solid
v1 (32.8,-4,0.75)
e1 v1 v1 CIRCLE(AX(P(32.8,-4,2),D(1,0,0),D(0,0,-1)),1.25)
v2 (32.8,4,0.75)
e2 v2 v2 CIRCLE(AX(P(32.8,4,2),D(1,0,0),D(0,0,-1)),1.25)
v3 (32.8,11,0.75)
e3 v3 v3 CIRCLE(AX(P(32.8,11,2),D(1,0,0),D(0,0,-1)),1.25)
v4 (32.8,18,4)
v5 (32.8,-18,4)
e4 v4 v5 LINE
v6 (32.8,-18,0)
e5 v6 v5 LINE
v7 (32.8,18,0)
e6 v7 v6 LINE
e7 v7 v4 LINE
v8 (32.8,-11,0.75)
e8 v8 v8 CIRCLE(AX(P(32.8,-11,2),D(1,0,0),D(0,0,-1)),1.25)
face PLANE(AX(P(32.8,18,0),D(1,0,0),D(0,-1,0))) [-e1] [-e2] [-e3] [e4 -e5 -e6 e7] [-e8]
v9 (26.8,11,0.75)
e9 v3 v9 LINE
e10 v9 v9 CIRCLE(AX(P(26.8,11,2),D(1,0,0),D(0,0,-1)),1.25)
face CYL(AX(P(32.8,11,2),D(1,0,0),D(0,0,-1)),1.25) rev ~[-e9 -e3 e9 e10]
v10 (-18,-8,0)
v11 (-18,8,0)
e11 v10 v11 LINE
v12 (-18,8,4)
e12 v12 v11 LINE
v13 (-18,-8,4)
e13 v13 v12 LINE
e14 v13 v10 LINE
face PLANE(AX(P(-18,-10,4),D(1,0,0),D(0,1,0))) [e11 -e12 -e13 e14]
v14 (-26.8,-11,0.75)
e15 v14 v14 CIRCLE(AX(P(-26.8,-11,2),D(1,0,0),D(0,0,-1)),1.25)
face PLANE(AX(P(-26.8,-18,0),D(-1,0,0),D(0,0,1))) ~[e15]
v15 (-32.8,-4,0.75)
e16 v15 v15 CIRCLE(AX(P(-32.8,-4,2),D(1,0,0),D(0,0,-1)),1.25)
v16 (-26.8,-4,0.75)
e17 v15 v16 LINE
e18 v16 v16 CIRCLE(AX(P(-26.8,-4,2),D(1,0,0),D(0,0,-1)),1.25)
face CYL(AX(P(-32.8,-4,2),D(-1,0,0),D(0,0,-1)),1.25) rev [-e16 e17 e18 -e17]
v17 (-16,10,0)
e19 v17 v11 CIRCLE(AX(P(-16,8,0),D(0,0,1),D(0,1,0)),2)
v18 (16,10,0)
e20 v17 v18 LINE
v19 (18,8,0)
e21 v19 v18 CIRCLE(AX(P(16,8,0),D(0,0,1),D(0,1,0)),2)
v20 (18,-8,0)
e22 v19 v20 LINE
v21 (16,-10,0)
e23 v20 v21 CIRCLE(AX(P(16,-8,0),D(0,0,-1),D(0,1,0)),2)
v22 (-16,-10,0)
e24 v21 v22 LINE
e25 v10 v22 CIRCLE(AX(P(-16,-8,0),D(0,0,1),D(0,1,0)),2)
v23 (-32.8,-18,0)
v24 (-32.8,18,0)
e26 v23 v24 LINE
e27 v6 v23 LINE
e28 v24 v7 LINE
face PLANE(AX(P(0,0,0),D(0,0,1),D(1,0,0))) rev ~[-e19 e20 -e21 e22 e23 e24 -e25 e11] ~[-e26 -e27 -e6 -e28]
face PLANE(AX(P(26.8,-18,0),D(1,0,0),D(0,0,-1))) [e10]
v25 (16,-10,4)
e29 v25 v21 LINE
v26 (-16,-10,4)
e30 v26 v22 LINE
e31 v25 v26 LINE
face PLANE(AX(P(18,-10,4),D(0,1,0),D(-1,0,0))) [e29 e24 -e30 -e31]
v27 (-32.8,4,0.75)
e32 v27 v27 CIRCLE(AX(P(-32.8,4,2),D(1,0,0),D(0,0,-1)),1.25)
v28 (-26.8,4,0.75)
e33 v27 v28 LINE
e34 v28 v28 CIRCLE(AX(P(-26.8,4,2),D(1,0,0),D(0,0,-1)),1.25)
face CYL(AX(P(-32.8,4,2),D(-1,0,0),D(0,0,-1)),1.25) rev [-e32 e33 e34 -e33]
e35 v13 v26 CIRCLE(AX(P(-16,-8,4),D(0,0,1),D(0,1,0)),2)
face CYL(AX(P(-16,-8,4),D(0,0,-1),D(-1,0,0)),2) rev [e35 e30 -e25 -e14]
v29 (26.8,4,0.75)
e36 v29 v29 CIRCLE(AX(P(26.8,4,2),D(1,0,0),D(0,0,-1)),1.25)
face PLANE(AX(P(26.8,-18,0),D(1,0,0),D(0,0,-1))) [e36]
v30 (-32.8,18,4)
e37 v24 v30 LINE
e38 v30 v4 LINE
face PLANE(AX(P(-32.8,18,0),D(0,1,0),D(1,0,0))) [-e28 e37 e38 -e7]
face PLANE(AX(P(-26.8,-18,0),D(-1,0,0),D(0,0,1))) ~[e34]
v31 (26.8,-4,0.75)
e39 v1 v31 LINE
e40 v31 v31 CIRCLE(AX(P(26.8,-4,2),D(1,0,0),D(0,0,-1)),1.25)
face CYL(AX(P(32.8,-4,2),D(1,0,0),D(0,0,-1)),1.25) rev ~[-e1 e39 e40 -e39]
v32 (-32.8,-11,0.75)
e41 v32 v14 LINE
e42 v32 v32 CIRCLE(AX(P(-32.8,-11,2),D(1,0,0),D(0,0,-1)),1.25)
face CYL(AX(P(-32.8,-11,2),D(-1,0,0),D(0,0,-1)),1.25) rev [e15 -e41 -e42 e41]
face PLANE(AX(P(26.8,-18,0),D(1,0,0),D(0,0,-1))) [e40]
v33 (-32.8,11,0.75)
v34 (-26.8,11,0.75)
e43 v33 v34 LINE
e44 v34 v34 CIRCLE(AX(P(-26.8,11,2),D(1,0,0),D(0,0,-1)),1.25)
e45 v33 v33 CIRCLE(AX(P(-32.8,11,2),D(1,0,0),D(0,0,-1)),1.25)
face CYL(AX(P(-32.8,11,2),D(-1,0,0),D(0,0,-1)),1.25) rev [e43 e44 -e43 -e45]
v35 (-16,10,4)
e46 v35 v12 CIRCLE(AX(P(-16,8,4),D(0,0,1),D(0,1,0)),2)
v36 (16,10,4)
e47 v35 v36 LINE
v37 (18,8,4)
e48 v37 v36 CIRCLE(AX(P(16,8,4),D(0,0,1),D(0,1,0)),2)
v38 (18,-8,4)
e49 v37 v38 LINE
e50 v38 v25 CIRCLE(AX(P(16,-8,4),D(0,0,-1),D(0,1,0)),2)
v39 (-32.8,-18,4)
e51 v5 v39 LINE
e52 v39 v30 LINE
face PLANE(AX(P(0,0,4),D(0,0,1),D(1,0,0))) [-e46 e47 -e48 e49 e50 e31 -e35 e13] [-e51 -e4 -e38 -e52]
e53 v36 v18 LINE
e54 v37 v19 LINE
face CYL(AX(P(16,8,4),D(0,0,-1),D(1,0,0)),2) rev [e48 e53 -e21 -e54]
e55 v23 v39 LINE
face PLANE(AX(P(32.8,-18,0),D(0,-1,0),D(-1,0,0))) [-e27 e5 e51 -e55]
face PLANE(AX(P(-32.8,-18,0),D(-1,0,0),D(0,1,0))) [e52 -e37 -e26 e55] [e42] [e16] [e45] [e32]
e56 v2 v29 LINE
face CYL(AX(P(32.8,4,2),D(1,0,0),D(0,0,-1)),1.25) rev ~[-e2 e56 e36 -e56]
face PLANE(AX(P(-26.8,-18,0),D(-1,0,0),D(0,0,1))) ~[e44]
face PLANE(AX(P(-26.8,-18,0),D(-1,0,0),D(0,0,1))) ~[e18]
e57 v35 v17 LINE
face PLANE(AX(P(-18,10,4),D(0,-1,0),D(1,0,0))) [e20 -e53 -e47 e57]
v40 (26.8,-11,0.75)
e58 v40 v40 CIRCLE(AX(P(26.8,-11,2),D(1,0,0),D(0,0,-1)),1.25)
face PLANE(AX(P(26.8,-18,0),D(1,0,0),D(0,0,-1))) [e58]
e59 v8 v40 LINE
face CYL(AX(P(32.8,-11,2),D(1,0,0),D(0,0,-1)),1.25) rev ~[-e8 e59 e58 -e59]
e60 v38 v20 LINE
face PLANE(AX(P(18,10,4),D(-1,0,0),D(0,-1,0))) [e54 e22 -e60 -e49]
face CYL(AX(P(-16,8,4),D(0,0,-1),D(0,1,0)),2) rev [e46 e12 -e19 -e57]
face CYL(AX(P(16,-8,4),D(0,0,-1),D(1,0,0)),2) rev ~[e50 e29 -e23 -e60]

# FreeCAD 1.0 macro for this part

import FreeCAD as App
import Part
import Sketcher

V = App.Vector


def edges_at(feature, points):
    """Names of the edges that pass closest to the given points."""
    edges = feature.Shape.Edges
    near = lambda p: min(range(len(edges)), key=lambda i: edges[i].distToShape(Part.Vertex(*p))[0])
    return sorted({f"Edge{near(p) + 1}" for p in points})

doc = App.newDocument("Part")
params = doc.addObject("Spreadsheet::Sheet", "Params")
for row, (alias, value) in enumerate([
    ("sketch1_height", "36 mm"),
    ("sketch1_width", "65.6 mm"),
    ("pad1_length", "4 mm"),
    ("sketch2_diameter", "2.5 mm"),
    ("pocket1_length", "6 mm"),
    ("sketch3_width", "36 mm"),
    ("sketch3_height", "20 mm"),
    ("pocket2_length", "6 mm"),
    ("fillet_radius", "2 mm"),
], start=1):
    params.set(f"A{row}", alias)
    params.set(f"B{row}", "=" + value)
    params.setAlias(f"B{row}", alias)

body = doc.addObject("PartDesign::Body", "Body")

# Sketch on XY plane
sketch1 = doc.addObject("Sketcher::SketchObject", "Sketch")
body.addObject(sketch1)
sketch1.AttachmentSupport = (doc.XY_Plane, [""])
sketch1.MapMode = "FlatFace"
sketch1.addGeometry(Part.LineSegment(V(33, 18, 0), V(-33, 18, 0)), False)
sketch1.addGeometry(Part.LineSegment(V(-33, 18, 0), V(-33, -18, 0)), False)
sketch1.addGeometry(Part.LineSegment(V(-33, -18, 0), V(33, -18, 0)), False)
sketch1.addGeometry(Part.LineSegment(V(33, -18, 0), V(33, 18, 0)), False)
sketch1.addConstraint(Sketcher.Constraint("Coincident", 0, 2, 1, 1))
sketch1.addConstraint(Sketcher.Constraint("Coincident", 1, 2, 2, 1))
sketch1.addConstraint(Sketcher.Constraint("Coincident", 2, 2, 3, 1))
sketch1.addConstraint(Sketcher.Constraint("Coincident", 3, 2, 0, 1))
sketch1.addConstraint(Sketcher.Constraint("Horizontal", 0))
sketch1.addConstraint(Sketcher.Constraint("Vertical", 1))
sketch1.addConstraint(Sketcher.Constraint("Horizontal", 2))
sketch1.addConstraint(Sketcher.Constraint("Vertical", 3))
sketch1.addConstraint(Sketcher.Constraint("Symmetric", 0, 2, 2, 2, -1, 1))
sketch1.addConstraint(Sketcher.Constraint("DistanceY", 1, 2, 1, 1, 36.0))
sketch1.addConstraint(Sketcher.Constraint("DistanceX", 0, 2, 0, 1, 65.6))
sketch1.setExpression("Constraints[9]", "Params.sketch1_height")
sketch1.setExpression("Constraints[10]", "Params.sketch1_width")
pad1 = doc.addObject("PartDesign::Pad", "Pad")
body.addObject(pad1)
pad1.Profile = sketch1
pad1.setExpression("Length", "Params.pad1_length")

# Sketch on YZ plane
sketch2 = doc.addObject("Sketcher::SketchObject", "Sketch001")
body.addObject(sketch2)
sketch2.AttachmentSupport = (doc.YZ_Plane, [""])
sketch2.MapMode = "FlatFace"
sketch2.AttachmentOffset = App.Placement(V(0, 0, 32.8), App.Rotation())
sketch2.addGeometry(Part.Circle(V(-11, 2, 0), V(0, 0, 1), 1.2), False)
sketch2.addGeometry(Part.Circle(V(-4, 2, 0), V(0, 0, 1), 1.2), False)
sketch2.addGeometry(Part.Circle(V(4, 2, 0), V(0, 0, 1), 1.2), False)
sketch2.addGeometry(Part.Circle(V(11, 2, 0), V(0, 0, 1), 1.2), False)
sketch2.addConstraint(Sketcher.Constraint("Equal", 0, 1))
sketch2.addConstraint(Sketcher.Constraint("Equal", 1, 2))
sketch2.addConstraint(Sketcher.Constraint("Equal", 2, 3))
sketch2.addConstraint(Sketcher.Constraint("Symmetric", 1, 3, 2, 3, -2))
sketch2.addConstraint(Sketcher.Constraint("Symmetric", 0, 3, 3, 3, -2))
sketch2.addConstraint(Sketcher.Constraint("Horizontal", 0, 3, 1, 3))
sketch2.addConstraint(Sketcher.Constraint("Diameter", 0, 2.5))
sketch2.addConstraint(Sketcher.Constraint("DistanceX", 0, 3, 1, 3, 7.0))
sketch2.addConstraint(Sketcher.Constraint("DistanceX", 0, 3, -1, 1, 11.0))
sketch2.addConstraint(Sketcher.Constraint("DistanceY", -1, 1, 0, 3, 2.0))
sketch2.setExpression("Constraints[6]", "Params.sketch2_diameter")
pocket1 = doc.addObject("PartDesign::Pocket", "Pocket")
body.addObject(pocket1)
pocket1.Profile = sketch2
pocket1.setExpression("Length", "Params.pocket1_length")
doc.recompute()

mirrored = doc.addObject("PartDesign::Mirrored", "Mirrored")
body.addObject(mirrored)
mirrored.Originals = [pocket1]
mirrored.MirrorPlane = (doc.YZ_Plane, [""])
body.Tip = mirrored

# Sketch on XY plane
sketch3 = doc.addObject("Sketcher::SketchObject", "Sketch002")
body.addObject(sketch3)
sketch3.AttachmentSupport = (doc.XY_Plane, [""])
sketch3.MapMode = "FlatFace"
sketch3.AttachmentOffset = App.Placement(V(0, 0, 4), App.Rotation())
sketch3.addGeometry(Part.LineSegment(V(-18, -10, 0), V(18, -10, 0)), False)
sketch3.addGeometry(Part.LineSegment(V(18, -10, 0), V(18, 10, 0)), False)
sketch3.addGeometry(Part.LineSegment(V(18, 10, 0), V(-18, 10, 0)), False)
sketch3.addGeometry(Part.LineSegment(V(-18, 10, 0), V(-18, -10, 0)), False)
sketch3.addConstraint(Sketcher.Constraint("Coincident", 0, 2, 1, 1))
sketch3.addConstraint(Sketcher.Constraint("Coincident", 1, 2, 2, 1))
sketch3.addConstraint(Sketcher.Constraint("Coincident", 2, 2, 3, 1))
sketch3.addConstraint(Sketcher.Constraint("Coincident", 3, 2, 0, 1))
sketch3.addConstraint(Sketcher.Constraint("Horizontal", 0))
sketch3.addConstraint(Sketcher.Constraint("Vertical", 1))
sketch3.addConstraint(Sketcher.Constraint("Horizontal", 2))
sketch3.addConstraint(Sketcher.Constraint("Vertical", 3))
sketch3.addConstraint(Sketcher.Constraint("Symmetric", 0, 2, 2, 2, -1, 1))
sketch3.addConstraint(Sketcher.Constraint("DistanceX", 0, 1, 0, 2, 36.0))
sketch3.addConstraint(Sketcher.Constraint("DistanceY", 1, 1, 1, 2, 20.0))
sketch3.setExpression("Constraints[9]", "Params.sketch3_width")
sketch3.setExpression("Constraints[10]", "Params.sketch3_height")
pocket2 = doc.addObject("PartDesign::Pocket", "Pocket001")
body.addObject(pocket2)
pocket2.Profile = sketch3
pocket2.setExpression("Length", "Params.pocket2_length")
doc.recompute()

fillet = doc.addObject("PartDesign::Fillet", "Fillet")
body.addObject(fillet)
fillet.Base = (pocket2, edges_at(pocket2, [
    (18, -10, 2),
    (18, 10, 2),
    (-18, 10, 2),
    (-18, -10, 2),
]))
fillet.setExpression("Radius", "Params.fillet_radius")

doc.recompute()
